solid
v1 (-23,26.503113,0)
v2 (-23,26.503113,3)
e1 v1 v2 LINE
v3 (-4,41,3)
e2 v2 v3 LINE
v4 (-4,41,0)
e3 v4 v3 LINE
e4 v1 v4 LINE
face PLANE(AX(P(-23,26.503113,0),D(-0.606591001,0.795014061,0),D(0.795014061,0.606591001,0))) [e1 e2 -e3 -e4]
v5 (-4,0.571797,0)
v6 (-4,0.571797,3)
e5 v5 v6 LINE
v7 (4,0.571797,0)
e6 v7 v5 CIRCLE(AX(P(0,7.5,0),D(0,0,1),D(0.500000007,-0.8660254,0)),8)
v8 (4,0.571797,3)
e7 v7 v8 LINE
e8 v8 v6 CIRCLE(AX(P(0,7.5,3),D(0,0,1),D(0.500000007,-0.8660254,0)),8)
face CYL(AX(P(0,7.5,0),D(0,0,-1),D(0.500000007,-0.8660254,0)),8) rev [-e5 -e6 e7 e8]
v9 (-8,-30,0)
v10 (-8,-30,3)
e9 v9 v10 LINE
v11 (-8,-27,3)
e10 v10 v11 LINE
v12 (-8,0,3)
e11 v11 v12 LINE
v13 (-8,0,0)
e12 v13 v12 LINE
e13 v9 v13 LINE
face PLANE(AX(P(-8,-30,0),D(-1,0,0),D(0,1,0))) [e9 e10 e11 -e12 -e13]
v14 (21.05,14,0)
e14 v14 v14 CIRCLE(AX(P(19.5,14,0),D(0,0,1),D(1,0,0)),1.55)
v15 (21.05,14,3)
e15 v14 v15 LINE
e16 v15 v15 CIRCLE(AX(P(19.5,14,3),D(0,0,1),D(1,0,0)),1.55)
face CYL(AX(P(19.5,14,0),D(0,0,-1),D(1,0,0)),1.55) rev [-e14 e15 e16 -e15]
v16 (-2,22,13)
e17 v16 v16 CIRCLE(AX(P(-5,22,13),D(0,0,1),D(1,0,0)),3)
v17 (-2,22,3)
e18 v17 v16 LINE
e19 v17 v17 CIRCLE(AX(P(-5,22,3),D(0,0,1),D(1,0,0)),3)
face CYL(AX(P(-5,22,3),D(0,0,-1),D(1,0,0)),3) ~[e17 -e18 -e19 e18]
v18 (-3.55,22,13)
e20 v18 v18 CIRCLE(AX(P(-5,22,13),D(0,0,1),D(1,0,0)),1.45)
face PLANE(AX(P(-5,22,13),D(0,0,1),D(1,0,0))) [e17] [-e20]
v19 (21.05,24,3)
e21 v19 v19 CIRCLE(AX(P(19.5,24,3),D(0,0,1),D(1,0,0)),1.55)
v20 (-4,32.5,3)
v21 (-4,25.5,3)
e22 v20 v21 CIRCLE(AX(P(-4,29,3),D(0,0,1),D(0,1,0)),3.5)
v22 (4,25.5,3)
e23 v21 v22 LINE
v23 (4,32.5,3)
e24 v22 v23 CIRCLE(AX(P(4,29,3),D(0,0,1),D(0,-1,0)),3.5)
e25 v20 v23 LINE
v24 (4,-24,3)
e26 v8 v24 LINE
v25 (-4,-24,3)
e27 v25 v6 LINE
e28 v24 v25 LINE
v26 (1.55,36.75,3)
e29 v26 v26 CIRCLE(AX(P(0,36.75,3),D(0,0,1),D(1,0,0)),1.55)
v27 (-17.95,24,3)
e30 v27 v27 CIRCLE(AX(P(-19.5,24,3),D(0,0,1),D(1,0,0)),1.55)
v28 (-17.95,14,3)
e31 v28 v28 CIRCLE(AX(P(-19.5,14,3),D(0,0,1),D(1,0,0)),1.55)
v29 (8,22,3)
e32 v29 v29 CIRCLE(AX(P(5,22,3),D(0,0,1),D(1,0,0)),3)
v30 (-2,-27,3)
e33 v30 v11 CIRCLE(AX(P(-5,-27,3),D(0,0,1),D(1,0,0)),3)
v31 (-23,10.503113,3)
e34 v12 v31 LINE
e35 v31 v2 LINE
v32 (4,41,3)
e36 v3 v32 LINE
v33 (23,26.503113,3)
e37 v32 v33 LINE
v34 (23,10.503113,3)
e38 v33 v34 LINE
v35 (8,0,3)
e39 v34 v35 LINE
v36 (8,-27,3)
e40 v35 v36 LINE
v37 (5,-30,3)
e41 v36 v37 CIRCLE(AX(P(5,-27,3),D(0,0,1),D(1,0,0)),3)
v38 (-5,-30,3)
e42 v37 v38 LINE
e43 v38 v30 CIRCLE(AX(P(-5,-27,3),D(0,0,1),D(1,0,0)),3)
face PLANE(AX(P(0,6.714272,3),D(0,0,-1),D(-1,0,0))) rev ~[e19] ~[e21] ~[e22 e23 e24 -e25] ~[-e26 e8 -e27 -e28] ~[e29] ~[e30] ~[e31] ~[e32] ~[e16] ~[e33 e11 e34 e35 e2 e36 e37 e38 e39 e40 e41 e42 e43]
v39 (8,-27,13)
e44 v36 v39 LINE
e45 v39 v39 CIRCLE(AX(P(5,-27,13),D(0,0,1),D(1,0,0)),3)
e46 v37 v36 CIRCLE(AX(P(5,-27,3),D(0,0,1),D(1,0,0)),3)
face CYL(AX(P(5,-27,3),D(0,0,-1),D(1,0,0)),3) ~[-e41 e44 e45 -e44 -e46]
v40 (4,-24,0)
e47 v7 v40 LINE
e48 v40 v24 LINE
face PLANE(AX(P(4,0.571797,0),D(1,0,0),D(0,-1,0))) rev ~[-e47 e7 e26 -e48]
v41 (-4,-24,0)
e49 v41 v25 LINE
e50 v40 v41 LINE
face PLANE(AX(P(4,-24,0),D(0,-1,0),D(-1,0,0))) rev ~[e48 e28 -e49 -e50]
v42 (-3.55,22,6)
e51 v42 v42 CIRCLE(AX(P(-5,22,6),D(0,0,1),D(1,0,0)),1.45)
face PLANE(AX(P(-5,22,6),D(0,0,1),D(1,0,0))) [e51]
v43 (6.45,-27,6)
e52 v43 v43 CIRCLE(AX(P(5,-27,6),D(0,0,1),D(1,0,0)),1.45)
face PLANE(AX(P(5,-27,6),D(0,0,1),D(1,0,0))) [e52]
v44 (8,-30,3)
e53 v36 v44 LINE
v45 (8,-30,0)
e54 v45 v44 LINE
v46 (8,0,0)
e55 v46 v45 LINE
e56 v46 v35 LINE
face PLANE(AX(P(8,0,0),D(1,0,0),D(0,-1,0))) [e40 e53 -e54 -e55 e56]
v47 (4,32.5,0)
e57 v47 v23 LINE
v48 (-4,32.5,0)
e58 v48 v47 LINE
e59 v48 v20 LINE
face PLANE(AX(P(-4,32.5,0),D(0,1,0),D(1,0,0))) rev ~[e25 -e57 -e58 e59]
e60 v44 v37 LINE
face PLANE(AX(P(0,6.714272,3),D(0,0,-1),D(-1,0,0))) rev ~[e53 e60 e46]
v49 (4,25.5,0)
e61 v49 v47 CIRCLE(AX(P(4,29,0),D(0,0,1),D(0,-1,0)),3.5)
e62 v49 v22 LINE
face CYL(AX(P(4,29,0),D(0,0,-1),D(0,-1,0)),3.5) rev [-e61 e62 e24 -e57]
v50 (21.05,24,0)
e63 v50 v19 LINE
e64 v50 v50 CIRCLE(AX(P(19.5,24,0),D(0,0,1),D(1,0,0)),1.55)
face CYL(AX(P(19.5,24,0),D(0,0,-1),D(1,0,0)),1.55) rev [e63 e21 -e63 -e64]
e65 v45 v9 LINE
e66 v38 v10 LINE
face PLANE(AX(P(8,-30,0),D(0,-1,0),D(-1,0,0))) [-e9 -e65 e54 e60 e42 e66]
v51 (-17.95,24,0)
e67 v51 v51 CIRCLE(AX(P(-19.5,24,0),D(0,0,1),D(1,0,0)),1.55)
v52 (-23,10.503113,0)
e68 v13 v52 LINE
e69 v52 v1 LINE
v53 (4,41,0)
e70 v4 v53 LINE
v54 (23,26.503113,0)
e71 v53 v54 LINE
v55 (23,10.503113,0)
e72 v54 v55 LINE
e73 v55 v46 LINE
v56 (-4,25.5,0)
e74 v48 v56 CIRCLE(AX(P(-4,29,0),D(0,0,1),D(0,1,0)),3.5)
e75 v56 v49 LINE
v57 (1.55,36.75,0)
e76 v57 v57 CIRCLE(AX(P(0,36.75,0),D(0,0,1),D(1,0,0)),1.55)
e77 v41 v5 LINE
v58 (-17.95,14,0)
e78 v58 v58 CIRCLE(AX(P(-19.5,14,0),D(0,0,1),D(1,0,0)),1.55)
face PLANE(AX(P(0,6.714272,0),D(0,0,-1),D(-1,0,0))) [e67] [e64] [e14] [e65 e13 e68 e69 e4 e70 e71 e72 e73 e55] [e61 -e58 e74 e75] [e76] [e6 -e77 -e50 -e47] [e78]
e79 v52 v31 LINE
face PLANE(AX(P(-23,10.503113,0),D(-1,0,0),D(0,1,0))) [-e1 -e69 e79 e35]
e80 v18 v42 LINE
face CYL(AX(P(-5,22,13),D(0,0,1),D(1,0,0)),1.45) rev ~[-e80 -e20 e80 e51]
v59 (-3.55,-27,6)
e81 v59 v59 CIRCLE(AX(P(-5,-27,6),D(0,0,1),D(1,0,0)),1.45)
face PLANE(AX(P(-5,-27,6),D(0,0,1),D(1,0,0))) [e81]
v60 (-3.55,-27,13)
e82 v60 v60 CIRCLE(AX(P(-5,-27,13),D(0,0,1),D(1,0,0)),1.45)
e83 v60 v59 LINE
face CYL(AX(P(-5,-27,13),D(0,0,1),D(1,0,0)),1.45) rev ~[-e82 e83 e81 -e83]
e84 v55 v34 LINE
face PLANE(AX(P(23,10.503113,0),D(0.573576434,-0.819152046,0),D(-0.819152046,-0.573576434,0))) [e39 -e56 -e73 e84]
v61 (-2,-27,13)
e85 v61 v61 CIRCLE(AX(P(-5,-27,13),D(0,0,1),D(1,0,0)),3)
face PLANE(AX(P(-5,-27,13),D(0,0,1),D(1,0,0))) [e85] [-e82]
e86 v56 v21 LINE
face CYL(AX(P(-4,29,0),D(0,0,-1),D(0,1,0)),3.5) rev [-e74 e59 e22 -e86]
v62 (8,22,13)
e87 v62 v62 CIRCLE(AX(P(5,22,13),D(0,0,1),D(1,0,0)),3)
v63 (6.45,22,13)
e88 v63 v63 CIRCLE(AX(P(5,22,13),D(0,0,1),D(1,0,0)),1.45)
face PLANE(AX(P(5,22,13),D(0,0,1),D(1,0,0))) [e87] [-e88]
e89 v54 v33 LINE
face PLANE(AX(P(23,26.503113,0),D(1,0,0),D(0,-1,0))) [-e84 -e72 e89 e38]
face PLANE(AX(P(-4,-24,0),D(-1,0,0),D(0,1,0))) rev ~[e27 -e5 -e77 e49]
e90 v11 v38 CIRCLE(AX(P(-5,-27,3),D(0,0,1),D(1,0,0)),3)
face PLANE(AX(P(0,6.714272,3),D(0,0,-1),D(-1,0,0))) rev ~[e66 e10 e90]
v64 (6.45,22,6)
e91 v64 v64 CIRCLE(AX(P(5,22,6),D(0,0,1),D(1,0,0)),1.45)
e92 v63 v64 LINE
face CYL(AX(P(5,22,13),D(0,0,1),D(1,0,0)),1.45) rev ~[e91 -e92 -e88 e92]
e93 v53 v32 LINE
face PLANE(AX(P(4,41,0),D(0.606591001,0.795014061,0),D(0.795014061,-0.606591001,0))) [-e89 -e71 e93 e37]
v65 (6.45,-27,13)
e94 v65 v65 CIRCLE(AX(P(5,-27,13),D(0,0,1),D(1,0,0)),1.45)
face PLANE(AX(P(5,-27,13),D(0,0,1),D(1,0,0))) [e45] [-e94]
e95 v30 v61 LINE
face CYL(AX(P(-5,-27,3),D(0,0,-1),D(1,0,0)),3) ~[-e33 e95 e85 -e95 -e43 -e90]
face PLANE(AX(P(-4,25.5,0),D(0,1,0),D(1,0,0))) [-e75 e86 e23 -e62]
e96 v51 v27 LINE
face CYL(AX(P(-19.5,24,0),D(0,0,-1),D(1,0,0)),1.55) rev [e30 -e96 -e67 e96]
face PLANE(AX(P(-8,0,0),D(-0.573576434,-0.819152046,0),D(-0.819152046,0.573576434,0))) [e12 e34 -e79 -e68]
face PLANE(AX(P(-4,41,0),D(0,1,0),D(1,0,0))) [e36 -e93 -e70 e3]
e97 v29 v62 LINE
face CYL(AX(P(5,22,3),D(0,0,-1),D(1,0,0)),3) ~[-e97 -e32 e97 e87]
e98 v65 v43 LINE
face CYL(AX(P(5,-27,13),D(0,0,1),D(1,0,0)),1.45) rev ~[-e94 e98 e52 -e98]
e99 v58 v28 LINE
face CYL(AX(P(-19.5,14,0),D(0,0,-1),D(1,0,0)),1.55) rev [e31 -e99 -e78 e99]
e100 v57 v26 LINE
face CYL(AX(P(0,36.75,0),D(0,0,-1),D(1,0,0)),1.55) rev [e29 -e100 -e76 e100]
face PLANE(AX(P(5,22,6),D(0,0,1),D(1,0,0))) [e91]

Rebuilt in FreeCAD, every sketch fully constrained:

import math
import FreeCAD as App
import Part
import Sketcher

V = App.Vector
Q = App.Units.Quantity


def add_polygon(sketch, points):
    """Adds a closed chain of lines whose ends are joined by coincident constraints."""
    first, n = sketch.GeometryCount, len(points)
    for a, b in zip(points, points[1:] + points[:1]):
        sketch.addGeometry(Part.LineSegment(App.Vector(*a, 0), App.Vector(*b, 0)), False)
    for i in range(n):
        sketch.addConstraint(Sketcher.Constraint("Coincident", first + i, 2, first + (i + 1) % n, 1))

doc = App.newDocument("Part")
body = doc.addObject("PartDesign::Body", "Body")

sketch1 = body.newObject("Sketcher::SketchObject", "Sketch")
sketch1.AttachmentSupport = (doc.getObject("XY_Plane"), [""])
sketch1.MapMode = "FlatFace"
add_polygon(sketch1, [(-8, -30), (8, -30), (8, 0), (23, 10.503113), (23, 26.503113), (4, 41), (-4, 41), (-23, 26.503113), (-23, 10.503113), (-8, 0)])
sketch1.addGeometry(Part.LineSegment(V(4, 0.571797, 0), V(4, -24, 0)), False)
sketch1.addGeometry(Part.LineSegment(V(4, -24, 0), V(-4, -24, 0)), False)
sketch1.addGeometry(Part.LineSegment(V(-4, -24, 0), V(-4, 0.571797, 0)), False)
sketch1.addGeometry(Part.ArcOfCircle(Part.Circle(V(0, 7.5, 0), V(0, 0, 1), 8), math.radians(-60), math.radians(240)), False)
sketch1.addGeometry(Part.Circle(V(19.5, 14, 0), V(0, 0, 1), 1.55), False)
sketch1.addGeometry(Part.Circle(V(19.5, 24, 0), V(0, 0, 1), 1.55), False)
sketch1.addGeometry(Part.Circle(V(-19.5, 14, 0), V(0, 0, 1), 1.55), False)
sketch1.addGeometry(Part.LineSegment(V(-4, 32.5, 0), V(4, 32.5, 0)), False)
sketch1.addGeometry(Part.ArcOfCircle(Part.Circle(V(4, 29, 0), V(0, 0, 1), 3.5), math.radians(-90), math.radians(90)), False)
sketch1.addGeometry(Part.LineSegment(V(4, 25.5, 0), V(-4, 25.5, 0)), False)
sketch1.addGeometry(Part.ArcOfCircle(Part.Circle(V(-4, 29, 0), V(0, 0, 1), 3.5), math.radians(90), math.radians(270)), False)
sketch1.addGeometry(Part.Circle(V(0, 36.75, 0), V(0, 0, 1), 1.55), False)
sketch1.addGeometry(Part.Circle(V(-19.5, 24, 0), V(0, 0, 1), 1.55), False)
sketch1.addConstraint([
    Sketcher.Constraint("Coincident", 10, 2, 11, 1),
    Sketcher.Constraint("Coincident", 11, 2, 12, 1),
    Sketcher.Constraint("Coincident", 12, 2, 13, 2),
    Sketcher.Constraint("Coincident", 13, 1, 10, 1),
    Sketcher.Constraint("Tangent", 17, 2, 18, 2),
    Sketcher.Constraint("Tangent", 18, 1, 19, 1),
    Sketcher.Constraint("Tangent", 19, 2, 20, 2),
    Sketcher.Constraint("Tangent", 20, 1, 17, 1),
    Sketcher.Constraint("Horizontal", 0),
    Sketcher.Constraint("Vertical", 1),
    Sketcher.Constraint("Vertical", 3),
    Sketcher.Constraint("Horizontal", 5),
    Sketcher.Constraint("Vertical", 7),
    Sketcher.Constraint("Vertical", 9),
    Sketcher.Constraint("Vertical", 10),
    Sketcher.Constraint("Horizontal", 11),
    Sketcher.Constraint("Vertical", 12),
    Sketcher.Constraint("Horizontal", 17),
    Sketcher.Constraint("Horizontal", 19),
    Sketcher.Constraint("Equal", 14, 15),
    Sketcher.Constraint("Equal", 15, 16),
    Sketcher.Constraint("Equal", 16, 21),
    Sketcher.Constraint("Equal", 21, 22),
    Sketcher.Constraint("Symmetric", 1, 2, 8, 2, -1, 1),
    Sketcher.Constraint("Symmetric", 14, 3, 16, 3, -2),
    Sketcher.Constraint("Symmetric", 15, 3, 22, 3, -2),
    Sketcher.Constraint("Symmetric", 3, 2, 6, 2, -2),
    Sketcher.Constraint("Symmetric", 12, 2, 13, 1, -2),
    Sketcher.Constraint("PointOnObject", 21, 3, -2),
    Sketcher.Constraint("PointOnObject", 1, 2, -1),
    Sketcher.Constraint("Horizontal", 2, 2, 7, 2),
    Sketcher.Constraint("Vertical", 14, 3, 15, 3),
    Sketcher.Constraint("Vertical", 18, 3, 4, 2),
    Sketcher.Constraint("Vertical", 20, 3, 5, 2),
    Sketcher.Constraint("Vertical", 4, 2, 10, 2),
    Sketcher.Constraint("Vertical", 5, 2, 11, 2),
    Sketcher.Constraint("Equal", 0, 3),
    Sketcher.Constraint("Radius", 13, 8.0),
    Sketcher.Constraint("Diameter", 14, 3.1),
    Sketcher.Constraint("Radius", 18, 3.5),
    Sketcher.Constraint("DistanceX", 0, 1, 0, 2, 16.0),
    Sketcher.Constraint("DistanceX", 5, 2, 5, 1, 8.0),
    Sketcher.Constraint("DistanceY", 1, 1, 1, 2, 30.0),
    Sketcher.Constraint("Angle", 2, Q("35 deg")),
    Sketcher.Constraint("DistanceY", -1, 1, 14, 3, 14.0),
    Sketcher.Constraint("DistanceY", -1, 1, 15, 3, 24.0),
    Sketcher.Constraint("DistanceY", -1, 1, 18, 3, 29.0),
    Sketcher.Constraint("DistanceX", -1, 1, 2, 2, 23.0),
    Sketcher.Constraint("DistanceY", -1, 1, 4, 2, 41.0),
    Sketcher.Constraint("DistanceY", 10, 2, -1, 1, 24.0),
    Sketcher.Constraint("DistanceX", 16, 3, 14, 3, 39.0),
    Sketcher.Constraint("DistanceY", -1, 1, 13, 3, 7.5),
    Sketcher.Constraint("DistanceY", -1, 1, 21, 3, 36.75),
])
pad1 = body.newObject("PartDesign::Pad", "Pad")
pad1.Profile = sketch1
pad1.Length = 3

sketch2 = body.newObject("Sketcher::SketchObject", "Sketch001")
sketch2.AttachmentSupport = (doc.getObject("XY_Plane"), [""])
sketch2.MapMode = "FlatFace"
sketch2.AttachmentOffset = App.Placement(V(0, 0, 3), App.Rotation())
sketch2.addGeometry([
    Part.Circle(V(-5, 22, 0), V(0, 0, 1), 3),
    Part.Circle(V(5, 22, 0), V(0, 0, 1), 3),
    Part.Circle(V(5, -27, 0), V(0, 0, 1), 3),
    Part.Circle(V(-5, -27, 0), V(0, 0, 1), 3),
], False)
sketch2.addConstraint([
    Sketcher.Constraint("Equal", 0, 1),
    Sketcher.Constraint("Equal", 1, 2),
    Sketcher.Constraint("Equal", 2, 3),
    Sketcher.Constraint("Symmetric", 0, 3, 1, 3, -2),
    Sketcher.Constraint("Symmetric", 2, 3, 3, 3, -2),
    Sketcher.Constraint("Vertical", 1, 3, 2, 3),
    Sketcher.Constraint("Diameter", 0, 6.0),
    Sketcher.Constraint("DistanceX", 0, 3, -1, 1, 5.0),
    Sketcher.Constraint("DistanceY", -1, 1, 0, 3, 22.0),
    Sketcher.Constraint("DistanceY", 2, 3, -1, 1, 27.0),
])
pad2 = body.newObject("PartDesign::Pad", "Pad001")
pad2.Profile = sketch2
pad2.Length = 10

sketch3 = body.newObject("Sketcher::SketchObject", "Sketch002")
sketch3.AttachmentSupport = (doc.getObject("XY_Plane"), [""])
sketch3.MapMode = "FlatFace"
sketch3.AttachmentOffset = App.Placement(V(0, 0, 13), App.Rotation())
sketch3.addGeometry([
    Part.Circle(V(-5, 22, 0), V(0, 0, 1), 1.45),
    Part.Circle(V(5, 22, 0), V(0, 0, 1), 1.45),
    Part.Circle(V(5, -27, 0), V(0, 0, 1), 1.45),
    Part.Circle(V(-5, -27, 0), V(0, 0, 1), 1.45),
], False)
sketch3.addConstraint([
    Sketcher.Constraint("Equal", 0, 1),
    Sketcher.Constraint("Equal", 1, 2),
    Sketcher.Constraint("Equal", 2, 3),
    Sketcher.Constraint("Symmetric", 0, 3, 1, 3, -2),
    Sketcher.Constraint("Symmetric", 2, 3, 3, 3, -2),
    Sketcher.Constraint("Vertical", 1, 3, 2, 3),
    Sketcher.Constraint("Diameter", 0, 2.9),
    Sketcher.Constraint("DistanceX", 0, 3, -1, 1, 5.0),
    Sketcher.Constraint("DistanceY", -1, 1, 0, 3, 22.0),
    Sketcher.Constraint("DistanceY", 2, 3, -1, 1, 27.0),
])
pocket1 = body.newObject("PartDesign::Pocket", "Pocket")
pocket1.Profile = sketch3
pocket1.Length = 7

doc.recompute()
